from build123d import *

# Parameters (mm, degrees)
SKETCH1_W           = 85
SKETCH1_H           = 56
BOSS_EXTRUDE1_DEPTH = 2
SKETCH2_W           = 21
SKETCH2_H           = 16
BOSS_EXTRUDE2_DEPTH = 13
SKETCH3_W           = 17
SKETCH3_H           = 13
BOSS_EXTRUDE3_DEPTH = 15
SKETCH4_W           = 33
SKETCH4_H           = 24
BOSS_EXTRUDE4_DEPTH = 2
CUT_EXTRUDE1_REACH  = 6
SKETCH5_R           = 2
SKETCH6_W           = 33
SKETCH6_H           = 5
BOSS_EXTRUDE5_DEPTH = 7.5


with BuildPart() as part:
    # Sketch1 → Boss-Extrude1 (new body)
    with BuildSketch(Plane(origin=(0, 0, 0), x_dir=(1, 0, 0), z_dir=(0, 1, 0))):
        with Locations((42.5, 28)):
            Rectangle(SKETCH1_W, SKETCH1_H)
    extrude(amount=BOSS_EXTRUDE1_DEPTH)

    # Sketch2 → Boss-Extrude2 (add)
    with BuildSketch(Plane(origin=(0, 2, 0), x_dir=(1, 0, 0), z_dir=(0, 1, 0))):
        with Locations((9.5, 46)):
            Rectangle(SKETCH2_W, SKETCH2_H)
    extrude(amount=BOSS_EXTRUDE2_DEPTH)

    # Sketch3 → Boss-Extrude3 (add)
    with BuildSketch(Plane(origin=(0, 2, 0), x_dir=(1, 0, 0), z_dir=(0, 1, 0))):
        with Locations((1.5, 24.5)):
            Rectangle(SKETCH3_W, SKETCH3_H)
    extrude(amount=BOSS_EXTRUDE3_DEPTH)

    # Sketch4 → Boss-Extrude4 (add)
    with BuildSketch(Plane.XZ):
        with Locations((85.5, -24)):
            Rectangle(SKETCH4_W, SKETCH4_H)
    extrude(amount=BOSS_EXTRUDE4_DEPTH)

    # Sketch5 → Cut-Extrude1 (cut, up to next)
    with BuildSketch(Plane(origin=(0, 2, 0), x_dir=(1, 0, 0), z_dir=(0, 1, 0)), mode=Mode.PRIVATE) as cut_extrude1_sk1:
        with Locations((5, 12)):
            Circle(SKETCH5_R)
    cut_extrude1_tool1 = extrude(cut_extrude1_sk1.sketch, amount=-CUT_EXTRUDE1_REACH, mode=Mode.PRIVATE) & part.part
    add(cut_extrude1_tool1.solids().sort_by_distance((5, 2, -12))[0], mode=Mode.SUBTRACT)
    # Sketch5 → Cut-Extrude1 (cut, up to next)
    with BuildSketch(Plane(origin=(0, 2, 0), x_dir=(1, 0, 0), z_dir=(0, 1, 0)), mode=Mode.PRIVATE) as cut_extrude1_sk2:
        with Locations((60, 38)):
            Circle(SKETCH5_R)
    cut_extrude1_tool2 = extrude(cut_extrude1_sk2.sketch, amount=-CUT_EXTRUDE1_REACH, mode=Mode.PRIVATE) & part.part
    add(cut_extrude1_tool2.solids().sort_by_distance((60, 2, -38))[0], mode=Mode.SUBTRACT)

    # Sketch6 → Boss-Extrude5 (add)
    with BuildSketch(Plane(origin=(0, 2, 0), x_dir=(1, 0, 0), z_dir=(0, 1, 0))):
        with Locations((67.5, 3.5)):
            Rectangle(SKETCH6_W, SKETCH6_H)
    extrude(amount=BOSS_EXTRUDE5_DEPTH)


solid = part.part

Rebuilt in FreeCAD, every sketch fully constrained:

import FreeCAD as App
import Part
import Sketcher
from FreeCAD import Vector


def add_polygon(sketch, points):
    """Adds a closed chain of lines whose ends are joined by coincident constraints."""
    first, n = sketch.GeometryCount, len(points)
    for a, b in zip(points, points[1:] + points[:1]):
        sketch.addGeometry(Part.LineSegment(App.Vector(*a, 0), App.Vector(*b, 0)), False)
    for i in range(n):
        sketch.addConstraint(Sketcher.Constraint("Coincident", first + i, 2, first + (i + 1) % n, 1))

doc = App.newDocument("Part")
body = doc.addObject("PartDesign::Body", "Body")

sketch1 = doc.addObject("Sketcher::SketchObject", "Sketch")
body.addObject(sketch1)
sketch1.AttachmentSupport = (doc.XZ_Plane, [""])
sketch1.MapMode = "FlatFace"
add_polygon(sketch1, [(0, -56), (0, 0), (85, 0), (85, -56)])
sketch1.addConstraint([
    Sketcher.Constraint("Vertical", 0),
    Sketcher.Constraint("Horizontal", 1),
    Sketcher.Constraint("Vertical", 2),
    Sketcher.Constraint("Horizontal", 3),
    Sketcher.Constraint("Coincident", 0, 2, -1, 1),
    Sketcher.Constraint("DistanceX", 1, 1, 1, 2, 85.0),
    Sketcher.Constraint("DistanceY", 0, 1, 0, 2, 56.0),
])
pad1 = doc.addObject("PartDesign::Pad", "Pad")
body.addObject(pad1)
pad1.Profile = sketch1
pad1.Length = 2
pad1.Reversed = True

sketch2 = doc.addObject("Sketcher::SketchObject", "Sketch001")
body.addObject(sketch2)
sketch2.AttachmentSupport = (doc.XZ_Plane, [""])
sketch2.MapMode = "FlatFace"
sketch2.AttachmentOffset = App.Placement(Vector(0, 0, -2), App.Rotation())
add_polygon(sketch2, [(-1, -54), (-1, -38), (20, -38), (20, -54)])
sketch2.addConstraint([
    Sketcher.Constraint("Vertical", 0),
    Sketcher.Constraint("Horizontal", 1),
    Sketcher.Constraint("Vertical", 2),
    Sketcher.Constraint("Horizontal", 3),
    Sketcher.Constraint("DistanceX", 1, 1, 1, 2, 21.0),
    Sketcher.Constraint("DistanceY", 0, 1, 0, 2, 16.0),
    Sketcher.Constraint("DistanceX", 0, 2, -1, 1, 1.0),
    Sketcher.Constraint("DistanceY", 0, 2, -1, 1, 38.0),
])
pad2 = doc.addObject("PartDesign::Pad", "Pad001")
body.addObject(pad2)
pad2.Profile = sketch2
pad2.Length = 13
pad2.Reversed = True

sketch3 = doc.addObject("Sketcher::SketchObject", "Sketch002")
body.addObject(sketch3)
sketch3.AttachmentSupport = (doc.XZ_Plane, [""])
sketch3.MapMode = "FlatFace"
sketch3.AttachmentOffset = App.Placement(Vector(0, 0, -2), App.Rotation())
add_polygon(sketch3, [(-7, -31), (-7, -18), (10, -18), (10, -31)])
sketch3.addConstraint([
    Sketcher.Constraint("Vertical", 0),
    Sketcher.Constraint("Horizontal", 1),
    Sketcher.Constraint("Vertical", 2),
    Sketcher.Constraint("Horizontal", 3),
    Sketcher.Constraint("DistanceX", 1, 1, 1, 2, 17.0),
    Sketcher.Constraint("DistanceY", 0, 1, 0, 2, 13.0),
    Sketcher.Constraint("DistanceX", 0, 2, -1, 1, 7.0),
    Sketcher.Constraint("DistanceY", 0, 2, -1, 1, 18.0),
])
pad3 = doc.addObject("PartDesign::Pad", "Pad002")
body.addObject(pad3)
pad3.Profile = sketch3
pad3.Length = 15
pad3.Reversed = True

sketch4 = doc.addObject("Sketcher::SketchObject", "Sketch003")
body.addObject(sketch4)
sketch4.AttachmentSupport = (doc.XZ_Plane, [""])
sketch4.MapMode = "FlatFace"
add_polygon(sketch4, [(69, -12), (69, -36), (102, -36), (102, -12)])
sketch4.addConstraint([
    Sketcher.Constraint("Vertical", 0),
    Sketcher.Constraint("Horizontal", 1),
    Sketcher.Constraint("Vertical", 2),
    Sketcher.Constraint("Horizontal", 3),
    Sketcher.Constraint("DistanceX", 1, 1, 1, 2, 33.0),
    Sketcher.Constraint("DistanceY", 0, 2, 0, 1, 24.0),
    Sketcher.Constraint("DistanceX", -1, 1, 0, 2, 69.0),
    Sketcher.Constraint("DistanceY", 0, 2, -1, 1, 36.0),
])
pad4 = doc.addObject("PartDesign::Pad", "Pad003")
body.addObject(pad4)
pad4.Profile = sketch4
pad4.Length = 2

sketch5 = doc.addObject("Sketcher::SketchObject", "Sketch004")
body.addObject(sketch5)
sketch5.AttachmentSupport = (doc.XZ_Plane, [""])
sketch5.MapMode = "FlatFace"
sketch5.AttachmentOffset = App.Placement(Vector(0, 0, -2), App.Rotation())
sketch5.addGeometry(Part.Circle(Vector(5, -12, 0), Vector(0, 0, 1), 2), False)
sketch5.addConstraint([
    Sketcher.Constraint("Diameter", 0, 4.0),
    Sketcher.Constraint("DistanceX", -1, 1, 0, 3, 5.0),
    Sketcher.Constraint("DistanceY", 0, 3, -1, 1, 12.0),
])
pocket1 = doc.addObject("PartDesign::Pocket", "Pocket")
body.addObject(pocket1)
pocket1.Profile = sketch5
pocket1.Type = "UpToFirst"
pocket1.Reversed = True

sketch6 = doc.addObject("Sketcher::SketchObject", "Sketch005")
body.addObject(sketch6)
sketch6.AttachmentSupport = (doc.XZ_Plane, [""])
sketch6.MapMode = "FlatFace"
sketch6.AttachmentOffset = App.Placement(Vector(0, 0, -2), App.Rotation())
sketch6.addGeometry(Part.Circle(Vector(60, -38, 0), Vector(0, 0, 1), 2), False)
sketch6.addConstraint([
    Sketcher.Constraint("Diameter", 0, 4.0),
    Sketcher.Constraint("DistanceX", -1, 1, 0, 3, 60.0),
    Sketcher.Constraint("DistanceY", 0, 3, -1, 1, 38.0),
])
pocket2 = doc.addObject("PartDesign::Pocket", "Pocket001")
body.addObject(pocket2)
pocket2.Profile = sketch6
pocket2.Type = "UpToFirst"
pocket2.Reversed = True

sketch7 = doc.addObject("Sketcher::SketchObject", "Sketch006")
body.addObject(sketch7)
sketch7.AttachmentSupport = (doc.XZ_Plane, [""])
sketch7.MapMode = "FlatFace"
sketch7.AttachmentOffset = App.Placement(Vector(0, 0, -2), App.Rotation())
add_polygon(sketch7, [(51, -6), (51, -1), (84, -1), (84, -6)])
sketch7.addConstraint([
    Sketcher.Constraint("Vertical", 0),
    Sketcher.Constraint("Horizontal", 1),
    Sketcher.Constraint("Vertical", 2),
    Sketcher.Constraint("Horizontal", 3),
    Sketcher.Constraint("DistanceX", 1, 1, 1, 2, 33.0),
    Sketcher.Constraint("DistanceY", 0, 1, 0, 2, 5.0),
    Sketcher.Constraint("DistanceX", -1, 1, 0, 2, 51.0),
    Sketcher.Constraint("DistanceY", 0, 2, -1, 1, 1.0),
])
pad5 = doc.addObject("PartDesign::Pad", "Pad004")
body.addObject(pad5)
pad5.Profile = sketch7
pad5.Length = 7.5
pad5.Reversed = True

doc.recompute()
